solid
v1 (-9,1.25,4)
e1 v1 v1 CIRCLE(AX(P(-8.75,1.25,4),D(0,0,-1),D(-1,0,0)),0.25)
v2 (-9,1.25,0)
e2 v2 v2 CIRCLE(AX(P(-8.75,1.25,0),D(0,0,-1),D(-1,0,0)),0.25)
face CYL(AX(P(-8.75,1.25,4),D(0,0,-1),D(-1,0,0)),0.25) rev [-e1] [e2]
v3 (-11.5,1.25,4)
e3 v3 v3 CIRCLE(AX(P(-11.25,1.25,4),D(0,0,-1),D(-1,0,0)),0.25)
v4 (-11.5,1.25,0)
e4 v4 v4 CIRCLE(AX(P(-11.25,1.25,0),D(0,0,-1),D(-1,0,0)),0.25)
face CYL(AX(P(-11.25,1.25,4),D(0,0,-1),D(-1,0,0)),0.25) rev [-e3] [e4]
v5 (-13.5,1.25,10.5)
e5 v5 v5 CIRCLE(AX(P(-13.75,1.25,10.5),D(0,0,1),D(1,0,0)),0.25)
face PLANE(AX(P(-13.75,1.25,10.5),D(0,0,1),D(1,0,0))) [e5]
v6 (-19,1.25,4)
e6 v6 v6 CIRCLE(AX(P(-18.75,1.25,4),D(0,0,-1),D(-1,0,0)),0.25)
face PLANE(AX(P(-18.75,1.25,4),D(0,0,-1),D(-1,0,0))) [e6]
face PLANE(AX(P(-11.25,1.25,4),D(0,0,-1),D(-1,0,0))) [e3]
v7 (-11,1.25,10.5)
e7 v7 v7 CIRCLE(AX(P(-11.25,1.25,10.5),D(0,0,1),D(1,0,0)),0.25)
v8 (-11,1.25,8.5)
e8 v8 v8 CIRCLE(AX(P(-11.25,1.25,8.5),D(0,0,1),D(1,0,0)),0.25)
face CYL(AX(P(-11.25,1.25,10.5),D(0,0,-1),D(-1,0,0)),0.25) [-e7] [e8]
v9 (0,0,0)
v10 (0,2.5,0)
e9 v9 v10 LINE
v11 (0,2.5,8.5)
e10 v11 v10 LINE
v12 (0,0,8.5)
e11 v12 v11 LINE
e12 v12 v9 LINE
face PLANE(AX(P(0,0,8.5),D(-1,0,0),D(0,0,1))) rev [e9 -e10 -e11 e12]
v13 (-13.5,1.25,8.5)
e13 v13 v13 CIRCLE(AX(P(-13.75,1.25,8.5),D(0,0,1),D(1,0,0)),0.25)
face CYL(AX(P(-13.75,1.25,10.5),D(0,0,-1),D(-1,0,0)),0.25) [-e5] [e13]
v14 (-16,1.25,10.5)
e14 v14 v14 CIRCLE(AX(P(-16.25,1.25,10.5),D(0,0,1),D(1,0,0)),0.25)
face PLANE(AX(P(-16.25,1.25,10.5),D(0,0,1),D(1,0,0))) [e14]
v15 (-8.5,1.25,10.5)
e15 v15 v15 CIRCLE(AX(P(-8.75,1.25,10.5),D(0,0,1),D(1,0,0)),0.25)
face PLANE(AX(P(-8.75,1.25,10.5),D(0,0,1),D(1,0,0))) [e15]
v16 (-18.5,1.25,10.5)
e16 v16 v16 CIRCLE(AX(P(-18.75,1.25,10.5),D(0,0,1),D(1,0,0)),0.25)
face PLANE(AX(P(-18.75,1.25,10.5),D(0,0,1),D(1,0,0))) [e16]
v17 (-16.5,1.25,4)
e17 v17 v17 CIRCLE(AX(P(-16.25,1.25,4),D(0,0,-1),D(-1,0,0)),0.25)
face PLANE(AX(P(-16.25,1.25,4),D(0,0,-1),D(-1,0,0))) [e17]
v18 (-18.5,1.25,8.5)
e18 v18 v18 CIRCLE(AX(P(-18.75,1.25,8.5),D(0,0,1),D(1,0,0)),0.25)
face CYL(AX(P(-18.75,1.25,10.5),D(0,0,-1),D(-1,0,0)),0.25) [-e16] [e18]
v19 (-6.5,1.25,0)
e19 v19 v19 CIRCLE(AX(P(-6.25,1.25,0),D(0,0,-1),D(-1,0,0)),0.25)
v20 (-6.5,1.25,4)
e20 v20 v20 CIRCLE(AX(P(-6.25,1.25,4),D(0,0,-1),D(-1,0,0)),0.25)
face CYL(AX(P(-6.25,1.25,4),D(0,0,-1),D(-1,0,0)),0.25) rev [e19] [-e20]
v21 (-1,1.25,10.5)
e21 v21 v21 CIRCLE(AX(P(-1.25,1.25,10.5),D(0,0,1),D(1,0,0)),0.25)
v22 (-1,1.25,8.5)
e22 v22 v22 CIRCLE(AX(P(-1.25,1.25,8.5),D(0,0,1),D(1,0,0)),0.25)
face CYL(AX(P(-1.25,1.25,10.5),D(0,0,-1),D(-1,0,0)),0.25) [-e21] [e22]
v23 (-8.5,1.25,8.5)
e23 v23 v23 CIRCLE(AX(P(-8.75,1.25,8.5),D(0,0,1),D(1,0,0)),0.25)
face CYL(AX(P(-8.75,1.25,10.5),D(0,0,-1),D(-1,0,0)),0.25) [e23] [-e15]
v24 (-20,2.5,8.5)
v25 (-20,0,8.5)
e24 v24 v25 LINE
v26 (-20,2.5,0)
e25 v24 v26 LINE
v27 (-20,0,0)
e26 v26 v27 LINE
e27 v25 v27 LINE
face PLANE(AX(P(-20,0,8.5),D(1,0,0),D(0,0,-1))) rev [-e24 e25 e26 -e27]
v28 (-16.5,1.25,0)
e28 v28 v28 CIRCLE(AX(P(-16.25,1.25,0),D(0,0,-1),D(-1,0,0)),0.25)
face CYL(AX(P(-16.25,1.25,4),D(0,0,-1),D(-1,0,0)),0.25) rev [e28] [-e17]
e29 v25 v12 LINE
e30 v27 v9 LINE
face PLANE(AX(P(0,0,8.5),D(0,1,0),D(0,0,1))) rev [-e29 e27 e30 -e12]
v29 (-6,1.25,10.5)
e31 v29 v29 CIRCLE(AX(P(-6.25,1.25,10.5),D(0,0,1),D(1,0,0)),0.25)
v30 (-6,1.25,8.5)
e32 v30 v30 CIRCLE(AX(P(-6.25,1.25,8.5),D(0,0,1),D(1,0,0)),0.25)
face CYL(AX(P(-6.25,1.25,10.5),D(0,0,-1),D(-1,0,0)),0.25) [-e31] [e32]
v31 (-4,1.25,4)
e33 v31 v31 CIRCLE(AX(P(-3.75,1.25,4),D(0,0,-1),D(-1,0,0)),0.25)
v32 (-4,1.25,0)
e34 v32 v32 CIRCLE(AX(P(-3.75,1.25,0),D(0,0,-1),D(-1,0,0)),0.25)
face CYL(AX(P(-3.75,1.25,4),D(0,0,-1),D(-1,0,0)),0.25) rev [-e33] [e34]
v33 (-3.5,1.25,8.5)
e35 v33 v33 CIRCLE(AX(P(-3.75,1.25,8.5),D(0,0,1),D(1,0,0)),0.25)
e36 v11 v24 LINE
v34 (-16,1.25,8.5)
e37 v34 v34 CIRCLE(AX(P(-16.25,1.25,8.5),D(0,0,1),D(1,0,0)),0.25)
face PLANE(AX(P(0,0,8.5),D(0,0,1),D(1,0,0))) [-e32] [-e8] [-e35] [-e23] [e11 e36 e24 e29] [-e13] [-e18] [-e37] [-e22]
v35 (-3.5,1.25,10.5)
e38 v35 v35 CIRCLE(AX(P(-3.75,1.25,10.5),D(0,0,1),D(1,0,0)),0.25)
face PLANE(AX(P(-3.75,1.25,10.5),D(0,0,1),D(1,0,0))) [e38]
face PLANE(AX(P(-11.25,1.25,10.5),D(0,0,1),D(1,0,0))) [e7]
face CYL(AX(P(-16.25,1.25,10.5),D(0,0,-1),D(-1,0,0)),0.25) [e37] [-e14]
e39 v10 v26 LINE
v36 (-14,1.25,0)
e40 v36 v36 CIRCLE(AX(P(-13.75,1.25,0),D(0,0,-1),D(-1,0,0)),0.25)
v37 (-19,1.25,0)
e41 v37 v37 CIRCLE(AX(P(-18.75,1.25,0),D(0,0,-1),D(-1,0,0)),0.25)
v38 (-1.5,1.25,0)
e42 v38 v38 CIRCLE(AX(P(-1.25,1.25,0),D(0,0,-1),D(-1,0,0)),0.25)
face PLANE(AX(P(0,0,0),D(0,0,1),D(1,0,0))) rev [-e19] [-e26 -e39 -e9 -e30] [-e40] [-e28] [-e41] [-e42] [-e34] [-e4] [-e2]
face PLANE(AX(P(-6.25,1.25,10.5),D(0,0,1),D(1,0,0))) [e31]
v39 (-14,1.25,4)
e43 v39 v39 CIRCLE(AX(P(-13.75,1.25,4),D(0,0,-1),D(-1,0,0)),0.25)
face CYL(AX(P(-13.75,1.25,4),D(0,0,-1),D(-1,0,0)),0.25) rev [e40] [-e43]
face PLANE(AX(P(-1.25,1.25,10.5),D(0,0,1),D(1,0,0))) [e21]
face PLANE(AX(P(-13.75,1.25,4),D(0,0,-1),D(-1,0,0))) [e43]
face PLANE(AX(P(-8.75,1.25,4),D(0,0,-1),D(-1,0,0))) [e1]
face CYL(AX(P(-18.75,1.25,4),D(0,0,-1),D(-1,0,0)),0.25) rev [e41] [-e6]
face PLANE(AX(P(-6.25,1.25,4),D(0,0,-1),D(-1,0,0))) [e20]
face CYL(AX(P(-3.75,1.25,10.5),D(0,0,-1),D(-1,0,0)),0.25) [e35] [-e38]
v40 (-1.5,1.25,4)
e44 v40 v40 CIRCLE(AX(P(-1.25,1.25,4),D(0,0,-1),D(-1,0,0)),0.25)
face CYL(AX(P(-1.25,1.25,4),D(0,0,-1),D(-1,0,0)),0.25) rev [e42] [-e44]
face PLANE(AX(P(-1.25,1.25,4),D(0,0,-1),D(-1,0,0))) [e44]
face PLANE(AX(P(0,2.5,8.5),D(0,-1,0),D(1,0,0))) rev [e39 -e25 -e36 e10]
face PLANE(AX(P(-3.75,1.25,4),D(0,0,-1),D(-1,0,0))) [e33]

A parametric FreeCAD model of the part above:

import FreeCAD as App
import Part
import Sketcher
Q = App.Units.Quantity


def add_polygon(sketch, points):
    """Adds a closed chain of lines whose ends are joined by coincident constraints."""
    first, n = sketch.GeometryCount, len(points)
    for a, b in zip(points, points[1:] + points[:1]):
        sketch.addGeometry(Part.LineSegment(App.Vector(*a, 0), App.Vector(*b, 0)), False)
    for i in range(n):
        sketch.addConstraint(Sketcher.Constraint("Coincident", first + i, 2, first + (i + 1) % n, 1))

doc = App.newDocument("Part")
params = doc.addObject("Spreadsheet::Sheet", "Params")
for row, (alias, value) in enumerate([
    ("sketch1_width", "2.5 mm"),
    ("pad1_length", "8.5 mm"),
    ("sketch2_diameter", "0.5 mm"),
    ("pad2_length", "2 mm"),
    ("sketch3_diameter", "0.5 mm"),
    ("pocket1_length", "4 mm"),
    ("linearpattern_pitch", "2.5 mm"),
], start=1):
    params.set(f"A{row}", alias)
    params.set(f"B{row}", "=" + value)
    params.setAlias(f"B{row}", alias)

body = doc.addObject("PartDesign::Body", "Body")

# Sketch on XY plane
sketch1 = doc.addObject("Sketcher::SketchObject", "Sketch")
body.addObject(sketch1)
sketch1.AttachmentSupport = (doc.XY_Plane, [""])
sketch1.MapMode = "FlatFace"
add_polygon(sketch1, [(-2.5, 2.5), (-2.5, 0), (0, 0), (0, 2.5)])  # lines 0-3
sketch1.addConstraint(Sketcher.Constraint("Vertical", 0))
sketch1.addConstraint(Sketcher.Constraint("Horizontal", 1))
sketch1.addConstraint(Sketcher.Constraint("Vertical", 2))
sketch1.addConstraint(Sketcher.Constraint("Horizontal", 3))
sketch1.addConstraint(Sketcher.Constraint("Coincident", 1, 2, -1, 1))
sketch1.addConstraint(Sketcher.Constraint("Equal", 3, 0))
sketch1.addConstraint(Sketcher.Constraint("DistanceX", 1, 1, 1, 2, Q("2.5 mm")))
sketch1.setExpression("Constraints[10]", "Params.sketch1_width")
pad1 = doc.addObject("PartDesign::Pad", "Pad")
body.addObject(pad1)
pad1.Profile = sketch1
pad1.setExpression("Length", "Params.pad1_length")

# Sketch on XY plane
sketch2 = doc.addObject("Sketcher::SketchObject", "Sketch001")
body.addObject(sketch2)
sketch2.AttachmentSupport = (doc.XY_Plane, [""])
sketch2.MapMode = "FlatFace"
sketch2.AttachmentOffset = App.Placement(App.Vector(0, 0, 8.5), App.Rotation())
sketch2.addGeometry(Part.Circle(App.Vector(-1.25, 1.25, 0), App.Vector(0, 0, 1), 0.25), False)
sketch2.addConstraint(Sketcher.Constraint("Diameter", 0, Q("0.5 mm")))
sketch2.addConstraint(Sketcher.Constraint("DistanceX", 0, 3, -1, 1, Q("1.25 mm")))
sketch2.addConstraint(Sketcher.Constraint("DistanceY", -1, 1, 0, 3, Q("1.25 mm")))
sketch2.setExpression("Constraints[0]", "Params.sketch2_diameter")
pad2 = doc.addObject("PartDesign::Pad", "Pad001")
body.addObject(pad2)
pad2.Profile = sketch2
pad2.setExpression("Length", "Params.pad2_length")

# Sketch on XY plane
sketch3 = doc.addObject("Sketcher::SketchObject", "Sketch002")
body.addObject(sketch3)
sketch3.AttachmentSupport = (doc.XY_Plane, [""])
sketch3.MapMode = "FlatFace"
sketch3.addGeometry(Part.Circle(App.Vector(-1.25, 1.25, 0), App.Vector(0, 0, 1), 0.25), False)
sketch3.addConstraint(Sketcher.Constraint("Diameter", 0, Q("0.5 mm")))
sketch3.addConstraint(Sketcher.Constraint("DistanceX", 0, 3, -1, 1, Q("1.25 mm")))
sketch3.addConstraint(Sketcher.Constraint("DistanceY", -1, 1, 0, 3, Q("1.25 mm")))
sketch3.setExpression("Constraints[0]", "Params.sketch3_diameter")
pocket1 = doc.addObject("PartDesign::Pocket", "Pocket")
body.addObject(pocket1)
pocket1.Profile = sketch3
pocket1.setExpression("Length", "Params.pocket1_length")
pocket1.Reversed = True
doc.recompute()

linearpattern = doc.addObject("PartDesign::LinearPattern", "LinearPattern")
body.addObject(linearpattern)
linearpattern.Originals = [pad1, pad2, pocket1]
linearpattern.Direction = (doc.X_Axis, [""])
linearpattern.Mode = "offset"
linearpattern.setExpression("Offset", "Params.linearpattern_pitch")
linearpattern.Occurrences = 8
linearpattern.Reversed = True
body.Tip = linearpattern

doc.recompute()
